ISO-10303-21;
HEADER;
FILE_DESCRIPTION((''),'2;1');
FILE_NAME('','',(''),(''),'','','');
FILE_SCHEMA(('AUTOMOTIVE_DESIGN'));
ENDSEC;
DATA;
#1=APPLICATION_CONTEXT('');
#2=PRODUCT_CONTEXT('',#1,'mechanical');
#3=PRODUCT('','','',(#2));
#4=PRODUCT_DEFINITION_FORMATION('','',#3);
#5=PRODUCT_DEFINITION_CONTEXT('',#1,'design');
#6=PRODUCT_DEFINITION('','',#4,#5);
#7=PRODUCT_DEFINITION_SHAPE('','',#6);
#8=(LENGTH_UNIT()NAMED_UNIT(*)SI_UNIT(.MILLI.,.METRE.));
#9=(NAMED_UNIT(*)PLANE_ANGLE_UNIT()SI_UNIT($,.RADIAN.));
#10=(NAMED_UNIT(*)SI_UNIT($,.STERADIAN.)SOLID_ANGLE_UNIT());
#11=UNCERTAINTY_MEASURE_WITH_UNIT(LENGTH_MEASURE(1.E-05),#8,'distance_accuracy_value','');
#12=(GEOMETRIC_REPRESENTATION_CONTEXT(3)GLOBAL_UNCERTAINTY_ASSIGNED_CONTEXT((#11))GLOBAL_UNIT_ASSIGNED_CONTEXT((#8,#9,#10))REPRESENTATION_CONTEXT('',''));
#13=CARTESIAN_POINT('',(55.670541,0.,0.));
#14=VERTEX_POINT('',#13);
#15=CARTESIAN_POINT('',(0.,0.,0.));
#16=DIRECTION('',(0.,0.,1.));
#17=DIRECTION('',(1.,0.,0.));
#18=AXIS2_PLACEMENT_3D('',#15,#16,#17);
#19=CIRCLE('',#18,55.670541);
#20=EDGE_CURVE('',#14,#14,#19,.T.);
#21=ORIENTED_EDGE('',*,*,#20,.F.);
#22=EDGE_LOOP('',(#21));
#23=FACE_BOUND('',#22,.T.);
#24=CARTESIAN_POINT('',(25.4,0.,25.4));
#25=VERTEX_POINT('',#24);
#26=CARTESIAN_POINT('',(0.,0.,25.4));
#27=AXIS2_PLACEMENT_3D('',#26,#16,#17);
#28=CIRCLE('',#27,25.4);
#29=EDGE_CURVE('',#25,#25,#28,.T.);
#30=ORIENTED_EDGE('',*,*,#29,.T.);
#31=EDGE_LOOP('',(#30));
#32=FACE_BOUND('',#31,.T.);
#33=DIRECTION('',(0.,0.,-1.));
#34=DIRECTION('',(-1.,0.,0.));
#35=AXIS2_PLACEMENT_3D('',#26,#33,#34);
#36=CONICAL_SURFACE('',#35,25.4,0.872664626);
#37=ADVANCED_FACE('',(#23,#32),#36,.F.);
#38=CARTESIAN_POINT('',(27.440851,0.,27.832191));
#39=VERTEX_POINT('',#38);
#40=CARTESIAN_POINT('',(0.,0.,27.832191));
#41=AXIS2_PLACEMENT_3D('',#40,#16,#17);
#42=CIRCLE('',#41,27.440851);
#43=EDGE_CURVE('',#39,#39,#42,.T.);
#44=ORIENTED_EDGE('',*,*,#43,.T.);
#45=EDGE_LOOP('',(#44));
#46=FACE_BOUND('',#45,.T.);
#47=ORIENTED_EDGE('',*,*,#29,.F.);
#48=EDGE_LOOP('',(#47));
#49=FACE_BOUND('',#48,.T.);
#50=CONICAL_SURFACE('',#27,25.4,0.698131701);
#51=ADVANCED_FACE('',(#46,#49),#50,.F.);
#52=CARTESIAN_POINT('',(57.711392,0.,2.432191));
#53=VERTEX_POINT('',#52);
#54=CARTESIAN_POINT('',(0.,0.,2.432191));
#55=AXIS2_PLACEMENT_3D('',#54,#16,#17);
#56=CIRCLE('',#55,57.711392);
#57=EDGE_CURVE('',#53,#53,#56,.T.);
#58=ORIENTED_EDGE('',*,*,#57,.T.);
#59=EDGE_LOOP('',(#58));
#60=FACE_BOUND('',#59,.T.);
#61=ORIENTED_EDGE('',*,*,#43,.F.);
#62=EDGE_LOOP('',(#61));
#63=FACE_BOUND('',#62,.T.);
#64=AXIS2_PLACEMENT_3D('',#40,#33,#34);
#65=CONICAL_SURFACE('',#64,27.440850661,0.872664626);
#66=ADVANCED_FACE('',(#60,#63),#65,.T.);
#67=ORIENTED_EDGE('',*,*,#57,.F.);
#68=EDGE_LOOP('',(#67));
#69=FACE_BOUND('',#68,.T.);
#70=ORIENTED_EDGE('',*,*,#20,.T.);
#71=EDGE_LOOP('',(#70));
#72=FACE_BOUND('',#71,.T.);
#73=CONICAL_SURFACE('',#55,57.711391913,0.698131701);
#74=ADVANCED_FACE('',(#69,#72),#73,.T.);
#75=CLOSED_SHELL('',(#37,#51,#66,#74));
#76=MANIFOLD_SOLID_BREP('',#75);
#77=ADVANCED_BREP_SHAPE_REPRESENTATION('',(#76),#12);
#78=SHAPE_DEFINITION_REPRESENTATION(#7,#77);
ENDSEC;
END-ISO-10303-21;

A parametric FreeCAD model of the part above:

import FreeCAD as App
import Part
import Sketcher
from FreeCAD import Vector
Q = App.Units.Quantity


def add_polygon(sketch, points):
    """Adds a closed chain of lines whose ends are joined by coincident constraints."""
    first, n = sketch.GeometryCount, len(points)
    for a, b in zip(points, points[1:] + points[:1]):
        sketch.addGeometry(Part.LineSegment(App.Vector(*a, 0), App.Vector(*b, 0)), False)
    for i in range(n):
        sketch.addConstraint(Sketcher.Constraint("Coincident", first + i, 2, first + (i + 1) % n, 1))

doc = App.newDocument("Part")
params = doc.addObject("Spreadsheet::Sheet", "Params")
for row, (alias, value) in enumerate([
    ("sketch1_length", "0.125 in"),
    ("revolution_angle", "360 deg"),
], start=1):
    params.set(f"A{row}", alias)
    params.set(f"B{row}", "=" + value)
    params.setAlias(f"B{row}", alias)

body = doc.addObject("PartDesign::Body", "Body")

# Sketch on YZ plane
sketch1 = body.newObject("Sketcher::SketchObject", "Sketch")
sketch1.AttachmentSupport = (doc.getObject("YZ_Plane"), [""])
sketch1.MapMode = "FlatFace"
add_polygon(sketch1, [(25.4, 25.4), (55.7, 0), (57.7, 2.4), (27.4, 27.8)])  # lines 0-3
sketch1.addConstraint([
    Sketcher.Constraint("PointOnObject", 0, 2, -1),
    Sketcher.Constraint("Perpendicular", 0, 1),
    Sketcher.Constraint("Perpendicular", 1, 2),
    Sketcher.Constraint("Perpendicular", 2, 3),
    Sketcher.Constraint("DistanceX", -1, 1, 3, 2, Q("1 in")),
    Sketcher.Constraint("DistanceY", -1, 1, 3, 2, Q("1 in")),
    Sketcher.Constraint("Angle", 0, Q("-40 deg")),
    Sketcher.Constraint("Distance", 1, Q("0.125 in")),
])
sketch1.setExpression("Constraints[11]", "Params.sketch1_length")
revolution = body.newObject("PartDesign::Revolution", "Revolution")
revolution.Profile = sketch1
revolution.ReferenceAxis = (sketch1, ["V_Axis"])
revolution.setExpression("Angle", "Params.revolution_angle")

doc.recompute()
